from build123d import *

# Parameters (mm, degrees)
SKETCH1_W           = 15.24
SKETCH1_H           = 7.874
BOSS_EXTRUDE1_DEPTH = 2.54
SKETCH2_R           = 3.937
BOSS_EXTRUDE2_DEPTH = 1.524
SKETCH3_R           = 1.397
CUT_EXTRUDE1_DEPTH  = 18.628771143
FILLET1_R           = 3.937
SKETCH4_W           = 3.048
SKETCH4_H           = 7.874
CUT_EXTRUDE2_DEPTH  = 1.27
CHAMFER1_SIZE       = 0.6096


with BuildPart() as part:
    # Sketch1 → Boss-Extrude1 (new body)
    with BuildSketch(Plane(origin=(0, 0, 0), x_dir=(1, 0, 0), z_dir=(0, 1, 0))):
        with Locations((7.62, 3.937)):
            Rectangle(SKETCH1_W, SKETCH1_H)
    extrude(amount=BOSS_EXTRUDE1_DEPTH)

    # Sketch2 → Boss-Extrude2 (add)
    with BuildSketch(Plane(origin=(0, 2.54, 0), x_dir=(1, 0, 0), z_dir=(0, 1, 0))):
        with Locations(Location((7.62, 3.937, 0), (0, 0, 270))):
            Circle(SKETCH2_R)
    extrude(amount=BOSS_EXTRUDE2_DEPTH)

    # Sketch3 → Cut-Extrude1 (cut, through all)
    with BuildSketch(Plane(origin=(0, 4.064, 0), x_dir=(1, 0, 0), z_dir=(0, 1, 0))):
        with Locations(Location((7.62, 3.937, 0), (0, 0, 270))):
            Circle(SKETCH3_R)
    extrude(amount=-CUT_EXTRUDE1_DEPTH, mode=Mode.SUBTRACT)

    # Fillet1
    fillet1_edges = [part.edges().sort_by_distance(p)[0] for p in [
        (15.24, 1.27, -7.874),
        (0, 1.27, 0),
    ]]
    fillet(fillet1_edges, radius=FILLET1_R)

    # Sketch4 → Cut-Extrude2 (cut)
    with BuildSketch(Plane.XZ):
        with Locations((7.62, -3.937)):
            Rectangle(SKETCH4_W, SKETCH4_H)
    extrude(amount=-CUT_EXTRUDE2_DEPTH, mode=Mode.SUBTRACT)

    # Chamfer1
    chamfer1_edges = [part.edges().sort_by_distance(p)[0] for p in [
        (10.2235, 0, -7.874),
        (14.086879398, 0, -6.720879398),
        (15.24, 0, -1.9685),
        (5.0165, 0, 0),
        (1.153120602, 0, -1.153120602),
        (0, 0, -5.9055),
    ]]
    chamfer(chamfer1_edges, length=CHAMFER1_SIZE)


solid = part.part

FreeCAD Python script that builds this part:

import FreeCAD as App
import Part
import Sketcher

V = App.Vector
Q = App.Units.Quantity


def edges_at(feature, points):
    """Names of the edges that pass closest to the given points."""
    edges = feature.Shape.Edges
    near = lambda p: min(range(len(edges)), key=lambda i: edges[i].distToShape(Part.Vertex(*p))[0])
    return sorted({f"Edge{near(p) + 1}" for p in points})


def add_polygon(sketch, points):
    """Adds a closed chain of lines whose ends are joined by coincident constraints."""
    first, n = sketch.GeometryCount, len(points)
    for a, b in zip(points, points[1:] + points[:1]):
        sketch.addGeometry(Part.LineSegment(App.Vector(*a, 0), App.Vector(*b, 0)), False)
    for i in range(n):
        sketch.addConstraint(Sketcher.Constraint("Coincident", first + i, 2, first + (i + 1) % n, 1))

doc = App.newDocument("Part")
body = doc.addObject("PartDesign::Body", "Body")

# Sketch on XZ plane
sketch1 = body.newObject("Sketcher::SketchObject", "Sketch")
sketch1.AttachmentSupport = (doc.getObject("XZ_Plane"), [""])
sketch1.MapMode = "FlatFace"
add_polygon(sketch1, [(0, -8), (0, 0), (15, 0), (15, -8)])  # lines 0-3
sketch1.addConstraint([
    Sketcher.Constraint("Vertical", 0),
    Sketcher.Constraint("Horizontal", 1),
    Sketcher.Constraint("Vertical", 2),
    Sketcher.Constraint("Horizontal", 3),
    Sketcher.Constraint("Coincident", 0, 2, -1, 1),
    Sketcher.Constraint("DistanceX", 1, 1, 1, 2, Q("0.6 in")),
    Sketcher.Constraint("DistanceY", 0, 1, 0, 2, Q("0.31 in")),
])
pad1 = body.newObject("PartDesign::Pad", "Pad")
pad1.Profile = sketch1
pad1.Length = Q("0.1 in")
pad1.Reversed = True

# Sketch on XZ plane
sketch2 = body.newObject("Sketcher::SketchObject", "Sketch001")
sketch2.AttachmentSupport = (doc.getObject("XZ_Plane"), [""])
sketch2.MapMode = "FlatFace"
sketch2.AttachmentOffset = App.Placement(V(0, 0, -0.1 * 25.4), App.Rotation())
sketch2.addGeometry(Part.Circle(V(7.6, -3.9, 0), V(0, 0, 1), 3.9), False)
sketch2.addConstraint([
    Sketcher.Constraint("Diameter", 0, Q("0.31 in")),
    Sketcher.Constraint("DistanceX", -1, 1, 0, 3, Q("0.3 in")),
    Sketcher.Constraint("DistanceY", 0, 3, -1, 1, Q("0.155 in")),
])
pad2 = body.newObject("PartDesign::Pad", "Pad001")
pad2.Profile = sketch2
pad2.Length = Q("0.06 in")
pad2.Reversed = True

# Sketch on XZ plane
sketch3 = body.newObject("Sketcher::SketchObject", "Sketch002")
sketch3.AttachmentSupport = (doc.getObject("XZ_Plane"), [""])
sketch3.MapMode = "FlatFace"
sketch3.AttachmentOffset = App.Placement(V(0, 0, -0.16 * 25.4), App.Rotation())
sketch3.addGeometry(Part.Circle(V(7.6, -3.9, 0), V(0, 0, 1), 1.4), False)
sketch3.addConstraint([
    Sketcher.Constraint("Diameter", 0, Q("0.11 in")),
    Sketcher.Constraint("DistanceX", -1, 1, 0, 3, Q("0.3 in")),
    Sketcher.Constraint("DistanceY", 0, 3, -1, 1, Q("0.155 in")),
])
pocket1 = body.newObject("PartDesign::Pocket", "Pocket")
pocket1.Profile = sketch3
pocket1.Type = "ThroughAll"
pocket1.Reversed = True
doc.recompute()

fillet = body.newObject("PartDesign::Fillet", "Fillet")
fillet.Base = (pocket1, edges_at(pocket1, [(15.24, 1.27, -7.874), (0, 1.27, 0)]))
fillet.Radius = Q("0.155 in")

# Sketch on XZ plane
sketch4 = body.newObject("Sketcher::SketchObject", "Sketch003")
sketch4.AttachmentSupport = (doc.getObject("XZ_Plane"), [""])
sketch4.MapMode = "FlatFace"
add_polygon(sketch4, [(6.1, 0), (6.1, -7.9), (9.1, -7.9), (9.1, 0)])  # lines 0-3
sketch4.addConstraint([
    Sketcher.Constraint("Vertical", 0),
    Sketcher.Constraint("Horizontal", 1),
    Sketcher.Constraint("Vertical", 2),
    Sketcher.Constraint("Horizontal", 3),
    Sketcher.Constraint("PointOnObject", 2, 2, -1),
    Sketcher.Constraint("DistanceX", 1, 1, 1, 2, Q("0.12 in")),
    Sketcher.Constraint("DistanceY", 0, 2, 0, 1, Q("0.31 in")),
    Sketcher.Constraint("DistanceX", -1, 1, 0, 2, Q("0.24 in")),
])
pocket2 = body.newObject("PartDesign::Pocket", "Pocket001")
pocket2.Profile = sketch4
pocket2.Length = Q("0.05 in")
doc.recompute()

chamfer = body.newObject("PartDesign::Chamfer", "Chamfer")
chamfer.Base = (pocket2, edges_at(pocket2, [
    (10.223, 0, -7.874),
    (14.087, 0, -6.721),
    (15.24, 0, -1.968),
    (5.016, 0, 0),
    (1.153, 0, -1.153),
    (0, 0, -5.905),
]))
chamfer.Size = Q("0.024 in")

doc.recompute()
